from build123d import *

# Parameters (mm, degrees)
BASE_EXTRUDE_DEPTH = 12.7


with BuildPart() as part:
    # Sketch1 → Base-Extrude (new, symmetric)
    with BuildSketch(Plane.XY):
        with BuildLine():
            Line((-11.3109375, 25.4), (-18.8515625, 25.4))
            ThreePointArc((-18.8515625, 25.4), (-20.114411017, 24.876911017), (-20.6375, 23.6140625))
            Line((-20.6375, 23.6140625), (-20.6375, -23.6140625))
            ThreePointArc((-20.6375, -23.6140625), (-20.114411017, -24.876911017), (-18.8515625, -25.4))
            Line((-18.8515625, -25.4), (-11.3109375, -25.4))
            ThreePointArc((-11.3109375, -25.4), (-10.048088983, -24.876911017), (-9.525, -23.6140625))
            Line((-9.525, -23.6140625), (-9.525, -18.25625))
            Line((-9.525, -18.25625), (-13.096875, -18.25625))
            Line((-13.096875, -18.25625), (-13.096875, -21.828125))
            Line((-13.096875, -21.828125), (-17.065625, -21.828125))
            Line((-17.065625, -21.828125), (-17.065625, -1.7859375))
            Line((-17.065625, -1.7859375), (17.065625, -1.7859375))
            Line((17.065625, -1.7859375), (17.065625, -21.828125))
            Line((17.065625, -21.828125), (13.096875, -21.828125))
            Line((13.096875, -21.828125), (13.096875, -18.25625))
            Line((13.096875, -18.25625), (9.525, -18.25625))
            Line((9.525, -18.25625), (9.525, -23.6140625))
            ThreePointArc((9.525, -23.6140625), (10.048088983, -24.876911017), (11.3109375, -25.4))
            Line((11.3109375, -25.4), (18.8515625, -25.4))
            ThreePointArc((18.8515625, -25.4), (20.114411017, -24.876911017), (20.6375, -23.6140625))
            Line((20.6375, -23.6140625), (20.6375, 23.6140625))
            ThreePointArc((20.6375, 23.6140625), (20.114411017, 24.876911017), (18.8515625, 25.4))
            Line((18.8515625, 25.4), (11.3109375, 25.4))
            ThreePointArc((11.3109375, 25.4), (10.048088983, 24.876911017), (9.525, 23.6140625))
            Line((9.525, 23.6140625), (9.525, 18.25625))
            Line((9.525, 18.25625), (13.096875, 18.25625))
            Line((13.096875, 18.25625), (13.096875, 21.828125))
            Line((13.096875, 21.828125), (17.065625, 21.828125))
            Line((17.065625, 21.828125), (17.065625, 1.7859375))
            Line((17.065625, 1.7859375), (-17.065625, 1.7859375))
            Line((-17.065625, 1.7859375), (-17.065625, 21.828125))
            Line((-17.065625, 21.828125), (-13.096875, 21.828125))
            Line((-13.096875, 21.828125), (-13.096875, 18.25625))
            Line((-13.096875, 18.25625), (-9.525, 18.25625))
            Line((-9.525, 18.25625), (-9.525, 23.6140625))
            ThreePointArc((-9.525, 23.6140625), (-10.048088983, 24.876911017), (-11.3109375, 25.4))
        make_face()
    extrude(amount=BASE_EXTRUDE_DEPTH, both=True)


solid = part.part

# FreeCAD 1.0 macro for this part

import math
import FreeCAD as App
import Part
import Sketcher
from FreeCAD import Vector
Q = App.Units.Quantity

doc = App.newDocument("Part")
params = doc.addObject("Spreadsheet::Sheet", "Params")
for row, (alias, value) in enumerate([
    ("sketch1_width", "0.296875 in"),
    ("sketch1_width2", "0.140625 in"),
    ("sketch1_width3", "0.15625 in"),
    ("sketch1_width4", "1.34375 in"),
    ("sketch1_height", "1.859375 in"),
    ("pad1_length", "1 in"),
], start=1):
    params.set(f"A{row}", alias)
    params.set(f"B{row}", "=" + value)
    params.setAlias(f"B{row}", alias)

body = doc.addObject("PartDesign::Body", "Body")

sketch1 = doc.addObject("Sketcher::SketchObject", "Sketch")
body.addObject(sketch1)
sketch1.AttachmentSupport = (doc.XY_Plane, [""])
sketch1.MapMode = "FlatFace"
sketch1.addGeometry(Part.LineSegment(Vector(-11.3, 25.4, 0), Vector(-18.9, 25.4, 0)), False)
sketch1.addGeometry(Part.ArcOfCircle(Part.Circle(Vector(-18.9, 23.6, 0), Vector(0, 0, 1), 1.8), math.radians(90), math.radians(180)), False)
sketch1.addGeometry(Part.LineSegment(Vector(-20.6, 23.6, 0), Vector(-20.6, -23.6, 0)), False)
sketch1.addGeometry(Part.ArcOfCircle(Part.Circle(Vector(-18.9, -23.6, 0), Vector(0, 0, 1), 1.8), math.radians(180), math.radians(270)), False)
sketch1.addGeometry(Part.LineSegment(Vector(-18.9, -25.4, 0), Vector(-11.3, -25.4, 0)), False)
sketch1.addGeometry(Part.ArcOfCircle(Part.Circle(Vector(-11.3, -23.6, 0), Vector(0, 0, 1), 1.8), math.radians(-90), math.radians(0)), False)
sketch1.addGeometry(Part.LineSegment(Vector(-9.5, -23.6, 0), Vector(-9.5, -18.3, 0)), False)
sketch1.addGeometry(Part.LineSegment(Vector(-9.5, -18.3, 0), Vector(-13.1, -18.3, 0)), False)
sketch1.addGeometry(Part.LineSegment(Vector(-13.1, -18.3, 0), Vector(-13.1, -21.8, 0)), False)
sketch1.addGeometry(Part.LineSegment(Vector(-13.1, -21.8, 0), Vector(-17.1, -21.8, 0)), False)
sketch1.addGeometry(Part.LineSegment(Vector(-17.1, -21.8, 0), Vector(-17.1, -1.8, 0)), False)
sketch1.addGeometry(Part.LineSegment(Vector(-17.1, -1.8, 0), Vector(17.1, -1.8, 0)), False)
sketch1.addGeometry(Part.LineSegment(Vector(17.1, -1.8, 0), Vector(17.1, -21.8, 0)), False)
sketch1.addGeometry(Part.LineSegment(Vector(17.1, -21.8, 0), Vector(13.1, -21.8, 0)), False)
sketch1.addGeometry(Part.LineSegment(Vector(13.1, -21.8, 0), Vector(13.1, -18.3, 0)), False)
sketch1.addGeometry(Part.LineSegment(Vector(13.1, -18.3, 0), Vector(9.5, -18.3, 0)), False)
sketch1.addGeometry(Part.LineSegment(Vector(9.5, -18.3, 0), Vector(9.5, -23.6, 0)), False)
sketch1.addGeometry(Part.ArcOfCircle(Part.Circle(Vector(11.3, -23.6, 0), Vector(0, 0, 1), 1.8), math.radians(180), math.radians(270)), False)
sketch1.addGeometry(Part.LineSegment(Vector(11.3, -25.4, 0), Vector(18.9, -25.4, 0)), False)
sketch1.addGeometry(Part.ArcOfCircle(Part.Circle(Vector(18.9, -23.6, 0), Vector(0, 0, 1), 1.8), math.radians(-90), math.radians(0)), False)
sketch1.addGeometry(Part.LineSegment(Vector(20.6, -23.6, 0), Vector(20.6, 23.6, 0)), False)
sketch1.addGeometry(Part.ArcOfCircle(Part.Circle(Vector(18.9, 23.6, 0), Vector(0, 0, 1), 1.8), math.radians(0), math.radians(90)), False)
sketch1.addGeometry(Part.LineSegment(Vector(18.9, 25.4, 0), Vector(11.3, 25.4, 0)), False)
sketch1.addGeometry(Part.ArcOfCircle(Part.Circle(Vector(11.3, 23.6, 0), Vector(0, 0, 1), 1.8), math.radians(90), math.radians(180)), False)
sketch1.addGeometry(Part.LineSegment(Vector(9.5, 23.6, 0), Vector(9.5, 18.3, 0)), False)
sketch1.addGeometry(Part.LineSegment(Vector(9.5, 18.3, 0), Vector(13.1, 18.3, 0)), False)
sketch1.addGeometry(Part.LineSegment(Vector(13.1, 18.3, 0), Vector(13.1, 21.8, 0)), False)
sketch1.addGeometry(Part.LineSegment(Vector(13.1, 21.8, 0), Vector(17.1, 21.8, 0)), False)
sketch1.addGeometry(Part.LineSegment(Vector(17.1, 21.8, 0), Vector(17.1, 1.8, 0)), False)
sketch1.addGeometry(Part.LineSegment(Vector(17.1, 1.8, 0), Vector(-17.1, 1.8, 0)), False)
sketch1.addGeometry(Part.LineSegment(Vector(-17.1, 1.8, 0), Vector(-17.1, 21.8, 0)), False)
sketch1.addGeometry(Part.LineSegment(Vector(-17.1, 21.8, 0), Vector(-13.1, 21.8, 0)), False)
sketch1.addGeometry(Part.LineSegment(Vector(-13.1, 21.8, 0), Vector(-13.1, 18.3, 0)), False)
sketch1.addGeometry(Part.LineSegment(Vector(-13.1, 18.3, 0), Vector(-9.5, 18.3, 0)), False)
sketch1.addGeometry(Part.LineSegment(Vector(-9.5, 18.3, 0), Vector(-9.5, 23.6, 0)), False)
sketch1.addGeometry(Part.ArcOfCircle(Part.Circle(Vector(-11.3, 23.6, 0), Vector(0, 0, 1), 1.8), math.radians(0), math.radians(90)), False)
sketch1.addConstraint(Sketcher.Constraint("Tangent", 0, 2, 1, 1))
sketch1.addConstraint(Sketcher.Constraint("Tangent", 1, 2, 2, 1))
sketch1.addConstraint(Sketcher.Constraint("Tangent", 2, 2, 3, 1))
sketch1.addConstraint(Sketcher.Constraint("Tangent", 3, 2, 4, 1))
sketch1.addConstraint(Sketcher.Constraint("Tangent", 4, 2, 5, 1))
sketch1.addConstraint(Sketcher.Constraint("Tangent", 5, 2, 6, 1))
sketch1.addConstraint(Sketcher.Constraint("Coincident", 6, 2, 7, 1))
sketch1.addConstraint(Sketcher.Constraint("Coincident", 7, 2, 8, 1))
sketch1.addConstraint(Sketcher.Constraint("Coincident", 8, 2, 9, 1))
sketch1.addConstraint(Sketcher.Constraint("Coincident", 9, 2, 10, 1))
sketch1.addConstraint(Sketcher.Constraint("Coincident", 10, 2, 11, 1))
sketch1.addConstraint(Sketcher.Constraint("Coincident", 11, 2, 12, 1))
sketch1.addConstraint(Sketcher.Constraint("Coincident", 12, 2, 13, 1))
sketch1.addConstraint(Sketcher.Constraint("Coincident", 13, 2, 14, 1))
sketch1.addConstraint(Sketcher.Constraint("Coincident", 14, 2, 15, 1))
sketch1.addConstraint(Sketcher.Constraint("Coincident", 15, 2, 16, 1))
sketch1.addConstraint(Sketcher.Constraint("Tangent", 16, 2, 17, 1))
sketch1.addConstraint(Sketcher.Constraint("Tangent", 17, 2, 18, 1))
sketch1.addConstraint(Sketcher.Constraint("Tangent", 18, 2, 19, 1))
sketch1.addConstraint(Sketcher.Constraint("Tangent", 19, 2, 20, 1))
sketch1.addConstraint(Sketcher.Constraint("Tangent", 20, 2, 21, 1))
sketch1.addConstraint(Sketcher.Constraint("Tangent", 21, 2, 22, 1))
sketch1.addConstraint(Sketcher.Constraint("Tangent", 22, 2, 23, 1))
sketch1.addConstraint(Sketcher.Constraint("Tangent", 23, 2, 24, 1))
sketch1.addConstraint(Sketcher.Constraint("Coincident", 24, 2, 25, 1))
sketch1.addConstraint(Sketcher.Constraint("Coincident", 25, 2, 26, 1))
sketch1.addConstraint(Sketcher.Constraint("Coincident", 26, 2, 27, 1))
sketch1.addConstraint(Sketcher.Constraint("Coincident", 27, 2, 28, 1))
sketch1.addConstraint(Sketcher.Constraint("Coincident", 28, 2, 29, 1))
sketch1.addConstraint(Sketcher.Constraint("Coincident", 29, 2, 30, 1))
sketch1.addConstraint(Sketcher.Constraint("Coincident", 30, 2, 31, 1))
sketch1.addConstraint(Sketcher.Constraint("Coincident", 31, 2, 32, 1))
sketch1.addConstraint(Sketcher.Constraint("Coincident", 32, 2, 33, 1))
sketch1.addConstraint(Sketcher.Constraint("Coincident", 33, 2, 34, 1))
sketch1.addConstraint(Sketcher.Constraint("Tangent", 34, 2, 35, 1))
sketch1.addConstraint(Sketcher.Constraint("Tangent", 35, 2, 0, 1))
sketch1.addConstraint(Sketcher.Constraint("Horizontal", 0))
sketch1.addConstraint(Sketcher.Constraint("Vertical", 2))
sketch1.addConstraint(Sketcher.Constraint("Horizontal", 4))
sketch1.addConstraint(Sketcher.Constraint("Vertical", 6))
sketch1.addConstraint(Sketcher.Constraint("Horizontal", 7))
sketch1.addConstraint(Sketcher.Constraint("Vertical", 8))
sketch1.addConstraint(Sketcher.Constraint("Horizontal", 9))
sketch1.addConstraint(Sketcher.Constraint("Vertical", 10))
sketch1.addConstraint(Sketcher.Constraint("Horizontal", 11))
sketch1.addConstraint(Sketcher.Constraint("Vertical", 12))
sketch1.addConstraint(Sketcher.Constraint("Horizontal", 13))
sketch1.addConstraint(Sketcher.Constraint("Vertical", 14))
sketch1.addConstraint(Sketcher.Constraint("Horizontal", 15))
sketch1.addConstraint(Sketcher.Constraint("Vertical", 16))
sketch1.addConstraint(Sketcher.Constraint("Horizontal", 18))
sketch1.addConstraint(Sketcher.Constraint("Vertical", 20))
sketch1.addConstraint(Sketcher.Constraint("Horizontal", 22))
sketch1.addConstraint(Sketcher.Constraint("Vertical", 24))
sketch1.addConstraint(Sketcher.Constraint("Horizontal", 25))
sketch1.addConstraint(Sketcher.Constraint("Vertical", 26))
sketch1.addConstraint(Sketcher.Constraint("Horizontal", 27))
sketch1.addConstraint(Sketcher.Constraint("Vertical", 28))
sketch1.addConstraint(Sketcher.Constraint("Horizontal", 29))
sketch1.addConstraint(Sketcher.Constraint("Vertical", 30))
sketch1.addConstraint(Sketcher.Constraint("Horizontal", 31))
sketch1.addConstraint(Sketcher.Constraint("Vertical", 32))
sketch1.addConstraint(Sketcher.Constraint("Horizontal", 33))
sketch1.addConstraint(Sketcher.Constraint("Vertical", 34))
sketch1.addConstraint(Sketcher.Constraint("Equal", 1, 3))
sketch1.addConstraint(Sketcher.Constraint("Equal", 3, 5))
sketch1.addConstraint(Sketcher.Constraint("Equal", 5, 17))
sketch1.addConstraint(Sketcher.Constraint("Equal", 17, 19))
sketch1.addConstraint(Sketcher.Constraint("Equal", 19, 21))
sketch1.addConstraint(Sketcher.Constraint("Equal", 21, 23))
sketch1.addConstraint(Sketcher.Constraint("Equal", 23, 35))
sketch1.addConstraint(Sketcher.Constraint("Symmetric", 1, 3, 19, 3, -1, 1))
sketch1.addConstraint(Sketcher.Constraint("Symmetric", 5, 3, 23, 3, -1, 1))
sketch1.addConstraint(Sketcher.Constraint("Symmetric", 7, 2, 25, 2, -1, 1))
sketch1.addConstraint(Sketcher.Constraint("Symmetric", 9, 2, 27, 2, -1, 1))
sketch1.addConstraint(Sketcher.Constraint("Symmetric", 11, 2, 29, 2, -1, 1))
sketch1.addConstraint(Sketcher.Constraint("Symmetric", 13, 2, 31, 2, -1, 1))
sketch1.addConstraint(Sketcher.Constraint("Symmetric", 15, 2, 33, 2, -1, 1))
sketch1.addConstraint(Sketcher.Constraint("Symmetric", 5, 3, 17, 3, -2))
sketch1.addConstraint(Sketcher.Constraint("Symmetric", 9, 2, 12, 2, -2))
sketch1.addConstraint(Sketcher.Constraint("Symmetric", 7, 2, 14, 2, -2))
sketch1.addConstraint(Sketcher.Constraint("Equal", 33, 8))
sketch1.addConstraint(Sketcher.Constraint("DistanceY", -1, 1, 0, 2, Q("1 in")))
sketch1.addConstraint(Sketcher.Constraint("DistanceY", 11, 2, 21, 3, Q("1 in")))
sketch1.addConstraint(Sketcher.Constraint("DistanceX", 0, 2, 0, 1, Q("0.296875 in")))
sketch1.addConstraint(Sketcher.Constraint("DistanceX", 7, 2, 7, 1, Q("0.140625 in")))
sketch1.addConstraint(Sketcher.Constraint("DistanceX", 9, 2, 9, 1, Q("0.15625 in")))
sketch1.addConstraint(Sketcher.Constraint("DistanceX", 11, 1, 11, 2, Q("1.34375 in")))
sketch1.addConstraint(Sketcher.Constraint("DistanceY", 2, 2, 2, 1, Q("1.859375 in")))
sketch1.addConstraint(Sketcher.Constraint("DistanceY", 6, 2, -1, 1, Q("0.71875 in")))
sketch1.setExpression("Constraints[84]", "Params.sketch1_width")
sketch1.setExpression("Constraints[85]", "Params.sketch1_width2")
sketch1.setExpression("Constraints[86]", "Params.sketch1_width3")
sketch1.setExpression("Constraints[87]", "Params.sketch1_width4")
sketch1.setExpression("Constraints[88]", "Params.sketch1_height")
pad1 = doc.addObject("PartDesign::Pad", "Pad")
body.addObject(pad1)
pad1.Profile = sketch1
pad1.setExpression("Length", "Params.pad1_length")
pad1.Midplane = True

doc.recompute()
